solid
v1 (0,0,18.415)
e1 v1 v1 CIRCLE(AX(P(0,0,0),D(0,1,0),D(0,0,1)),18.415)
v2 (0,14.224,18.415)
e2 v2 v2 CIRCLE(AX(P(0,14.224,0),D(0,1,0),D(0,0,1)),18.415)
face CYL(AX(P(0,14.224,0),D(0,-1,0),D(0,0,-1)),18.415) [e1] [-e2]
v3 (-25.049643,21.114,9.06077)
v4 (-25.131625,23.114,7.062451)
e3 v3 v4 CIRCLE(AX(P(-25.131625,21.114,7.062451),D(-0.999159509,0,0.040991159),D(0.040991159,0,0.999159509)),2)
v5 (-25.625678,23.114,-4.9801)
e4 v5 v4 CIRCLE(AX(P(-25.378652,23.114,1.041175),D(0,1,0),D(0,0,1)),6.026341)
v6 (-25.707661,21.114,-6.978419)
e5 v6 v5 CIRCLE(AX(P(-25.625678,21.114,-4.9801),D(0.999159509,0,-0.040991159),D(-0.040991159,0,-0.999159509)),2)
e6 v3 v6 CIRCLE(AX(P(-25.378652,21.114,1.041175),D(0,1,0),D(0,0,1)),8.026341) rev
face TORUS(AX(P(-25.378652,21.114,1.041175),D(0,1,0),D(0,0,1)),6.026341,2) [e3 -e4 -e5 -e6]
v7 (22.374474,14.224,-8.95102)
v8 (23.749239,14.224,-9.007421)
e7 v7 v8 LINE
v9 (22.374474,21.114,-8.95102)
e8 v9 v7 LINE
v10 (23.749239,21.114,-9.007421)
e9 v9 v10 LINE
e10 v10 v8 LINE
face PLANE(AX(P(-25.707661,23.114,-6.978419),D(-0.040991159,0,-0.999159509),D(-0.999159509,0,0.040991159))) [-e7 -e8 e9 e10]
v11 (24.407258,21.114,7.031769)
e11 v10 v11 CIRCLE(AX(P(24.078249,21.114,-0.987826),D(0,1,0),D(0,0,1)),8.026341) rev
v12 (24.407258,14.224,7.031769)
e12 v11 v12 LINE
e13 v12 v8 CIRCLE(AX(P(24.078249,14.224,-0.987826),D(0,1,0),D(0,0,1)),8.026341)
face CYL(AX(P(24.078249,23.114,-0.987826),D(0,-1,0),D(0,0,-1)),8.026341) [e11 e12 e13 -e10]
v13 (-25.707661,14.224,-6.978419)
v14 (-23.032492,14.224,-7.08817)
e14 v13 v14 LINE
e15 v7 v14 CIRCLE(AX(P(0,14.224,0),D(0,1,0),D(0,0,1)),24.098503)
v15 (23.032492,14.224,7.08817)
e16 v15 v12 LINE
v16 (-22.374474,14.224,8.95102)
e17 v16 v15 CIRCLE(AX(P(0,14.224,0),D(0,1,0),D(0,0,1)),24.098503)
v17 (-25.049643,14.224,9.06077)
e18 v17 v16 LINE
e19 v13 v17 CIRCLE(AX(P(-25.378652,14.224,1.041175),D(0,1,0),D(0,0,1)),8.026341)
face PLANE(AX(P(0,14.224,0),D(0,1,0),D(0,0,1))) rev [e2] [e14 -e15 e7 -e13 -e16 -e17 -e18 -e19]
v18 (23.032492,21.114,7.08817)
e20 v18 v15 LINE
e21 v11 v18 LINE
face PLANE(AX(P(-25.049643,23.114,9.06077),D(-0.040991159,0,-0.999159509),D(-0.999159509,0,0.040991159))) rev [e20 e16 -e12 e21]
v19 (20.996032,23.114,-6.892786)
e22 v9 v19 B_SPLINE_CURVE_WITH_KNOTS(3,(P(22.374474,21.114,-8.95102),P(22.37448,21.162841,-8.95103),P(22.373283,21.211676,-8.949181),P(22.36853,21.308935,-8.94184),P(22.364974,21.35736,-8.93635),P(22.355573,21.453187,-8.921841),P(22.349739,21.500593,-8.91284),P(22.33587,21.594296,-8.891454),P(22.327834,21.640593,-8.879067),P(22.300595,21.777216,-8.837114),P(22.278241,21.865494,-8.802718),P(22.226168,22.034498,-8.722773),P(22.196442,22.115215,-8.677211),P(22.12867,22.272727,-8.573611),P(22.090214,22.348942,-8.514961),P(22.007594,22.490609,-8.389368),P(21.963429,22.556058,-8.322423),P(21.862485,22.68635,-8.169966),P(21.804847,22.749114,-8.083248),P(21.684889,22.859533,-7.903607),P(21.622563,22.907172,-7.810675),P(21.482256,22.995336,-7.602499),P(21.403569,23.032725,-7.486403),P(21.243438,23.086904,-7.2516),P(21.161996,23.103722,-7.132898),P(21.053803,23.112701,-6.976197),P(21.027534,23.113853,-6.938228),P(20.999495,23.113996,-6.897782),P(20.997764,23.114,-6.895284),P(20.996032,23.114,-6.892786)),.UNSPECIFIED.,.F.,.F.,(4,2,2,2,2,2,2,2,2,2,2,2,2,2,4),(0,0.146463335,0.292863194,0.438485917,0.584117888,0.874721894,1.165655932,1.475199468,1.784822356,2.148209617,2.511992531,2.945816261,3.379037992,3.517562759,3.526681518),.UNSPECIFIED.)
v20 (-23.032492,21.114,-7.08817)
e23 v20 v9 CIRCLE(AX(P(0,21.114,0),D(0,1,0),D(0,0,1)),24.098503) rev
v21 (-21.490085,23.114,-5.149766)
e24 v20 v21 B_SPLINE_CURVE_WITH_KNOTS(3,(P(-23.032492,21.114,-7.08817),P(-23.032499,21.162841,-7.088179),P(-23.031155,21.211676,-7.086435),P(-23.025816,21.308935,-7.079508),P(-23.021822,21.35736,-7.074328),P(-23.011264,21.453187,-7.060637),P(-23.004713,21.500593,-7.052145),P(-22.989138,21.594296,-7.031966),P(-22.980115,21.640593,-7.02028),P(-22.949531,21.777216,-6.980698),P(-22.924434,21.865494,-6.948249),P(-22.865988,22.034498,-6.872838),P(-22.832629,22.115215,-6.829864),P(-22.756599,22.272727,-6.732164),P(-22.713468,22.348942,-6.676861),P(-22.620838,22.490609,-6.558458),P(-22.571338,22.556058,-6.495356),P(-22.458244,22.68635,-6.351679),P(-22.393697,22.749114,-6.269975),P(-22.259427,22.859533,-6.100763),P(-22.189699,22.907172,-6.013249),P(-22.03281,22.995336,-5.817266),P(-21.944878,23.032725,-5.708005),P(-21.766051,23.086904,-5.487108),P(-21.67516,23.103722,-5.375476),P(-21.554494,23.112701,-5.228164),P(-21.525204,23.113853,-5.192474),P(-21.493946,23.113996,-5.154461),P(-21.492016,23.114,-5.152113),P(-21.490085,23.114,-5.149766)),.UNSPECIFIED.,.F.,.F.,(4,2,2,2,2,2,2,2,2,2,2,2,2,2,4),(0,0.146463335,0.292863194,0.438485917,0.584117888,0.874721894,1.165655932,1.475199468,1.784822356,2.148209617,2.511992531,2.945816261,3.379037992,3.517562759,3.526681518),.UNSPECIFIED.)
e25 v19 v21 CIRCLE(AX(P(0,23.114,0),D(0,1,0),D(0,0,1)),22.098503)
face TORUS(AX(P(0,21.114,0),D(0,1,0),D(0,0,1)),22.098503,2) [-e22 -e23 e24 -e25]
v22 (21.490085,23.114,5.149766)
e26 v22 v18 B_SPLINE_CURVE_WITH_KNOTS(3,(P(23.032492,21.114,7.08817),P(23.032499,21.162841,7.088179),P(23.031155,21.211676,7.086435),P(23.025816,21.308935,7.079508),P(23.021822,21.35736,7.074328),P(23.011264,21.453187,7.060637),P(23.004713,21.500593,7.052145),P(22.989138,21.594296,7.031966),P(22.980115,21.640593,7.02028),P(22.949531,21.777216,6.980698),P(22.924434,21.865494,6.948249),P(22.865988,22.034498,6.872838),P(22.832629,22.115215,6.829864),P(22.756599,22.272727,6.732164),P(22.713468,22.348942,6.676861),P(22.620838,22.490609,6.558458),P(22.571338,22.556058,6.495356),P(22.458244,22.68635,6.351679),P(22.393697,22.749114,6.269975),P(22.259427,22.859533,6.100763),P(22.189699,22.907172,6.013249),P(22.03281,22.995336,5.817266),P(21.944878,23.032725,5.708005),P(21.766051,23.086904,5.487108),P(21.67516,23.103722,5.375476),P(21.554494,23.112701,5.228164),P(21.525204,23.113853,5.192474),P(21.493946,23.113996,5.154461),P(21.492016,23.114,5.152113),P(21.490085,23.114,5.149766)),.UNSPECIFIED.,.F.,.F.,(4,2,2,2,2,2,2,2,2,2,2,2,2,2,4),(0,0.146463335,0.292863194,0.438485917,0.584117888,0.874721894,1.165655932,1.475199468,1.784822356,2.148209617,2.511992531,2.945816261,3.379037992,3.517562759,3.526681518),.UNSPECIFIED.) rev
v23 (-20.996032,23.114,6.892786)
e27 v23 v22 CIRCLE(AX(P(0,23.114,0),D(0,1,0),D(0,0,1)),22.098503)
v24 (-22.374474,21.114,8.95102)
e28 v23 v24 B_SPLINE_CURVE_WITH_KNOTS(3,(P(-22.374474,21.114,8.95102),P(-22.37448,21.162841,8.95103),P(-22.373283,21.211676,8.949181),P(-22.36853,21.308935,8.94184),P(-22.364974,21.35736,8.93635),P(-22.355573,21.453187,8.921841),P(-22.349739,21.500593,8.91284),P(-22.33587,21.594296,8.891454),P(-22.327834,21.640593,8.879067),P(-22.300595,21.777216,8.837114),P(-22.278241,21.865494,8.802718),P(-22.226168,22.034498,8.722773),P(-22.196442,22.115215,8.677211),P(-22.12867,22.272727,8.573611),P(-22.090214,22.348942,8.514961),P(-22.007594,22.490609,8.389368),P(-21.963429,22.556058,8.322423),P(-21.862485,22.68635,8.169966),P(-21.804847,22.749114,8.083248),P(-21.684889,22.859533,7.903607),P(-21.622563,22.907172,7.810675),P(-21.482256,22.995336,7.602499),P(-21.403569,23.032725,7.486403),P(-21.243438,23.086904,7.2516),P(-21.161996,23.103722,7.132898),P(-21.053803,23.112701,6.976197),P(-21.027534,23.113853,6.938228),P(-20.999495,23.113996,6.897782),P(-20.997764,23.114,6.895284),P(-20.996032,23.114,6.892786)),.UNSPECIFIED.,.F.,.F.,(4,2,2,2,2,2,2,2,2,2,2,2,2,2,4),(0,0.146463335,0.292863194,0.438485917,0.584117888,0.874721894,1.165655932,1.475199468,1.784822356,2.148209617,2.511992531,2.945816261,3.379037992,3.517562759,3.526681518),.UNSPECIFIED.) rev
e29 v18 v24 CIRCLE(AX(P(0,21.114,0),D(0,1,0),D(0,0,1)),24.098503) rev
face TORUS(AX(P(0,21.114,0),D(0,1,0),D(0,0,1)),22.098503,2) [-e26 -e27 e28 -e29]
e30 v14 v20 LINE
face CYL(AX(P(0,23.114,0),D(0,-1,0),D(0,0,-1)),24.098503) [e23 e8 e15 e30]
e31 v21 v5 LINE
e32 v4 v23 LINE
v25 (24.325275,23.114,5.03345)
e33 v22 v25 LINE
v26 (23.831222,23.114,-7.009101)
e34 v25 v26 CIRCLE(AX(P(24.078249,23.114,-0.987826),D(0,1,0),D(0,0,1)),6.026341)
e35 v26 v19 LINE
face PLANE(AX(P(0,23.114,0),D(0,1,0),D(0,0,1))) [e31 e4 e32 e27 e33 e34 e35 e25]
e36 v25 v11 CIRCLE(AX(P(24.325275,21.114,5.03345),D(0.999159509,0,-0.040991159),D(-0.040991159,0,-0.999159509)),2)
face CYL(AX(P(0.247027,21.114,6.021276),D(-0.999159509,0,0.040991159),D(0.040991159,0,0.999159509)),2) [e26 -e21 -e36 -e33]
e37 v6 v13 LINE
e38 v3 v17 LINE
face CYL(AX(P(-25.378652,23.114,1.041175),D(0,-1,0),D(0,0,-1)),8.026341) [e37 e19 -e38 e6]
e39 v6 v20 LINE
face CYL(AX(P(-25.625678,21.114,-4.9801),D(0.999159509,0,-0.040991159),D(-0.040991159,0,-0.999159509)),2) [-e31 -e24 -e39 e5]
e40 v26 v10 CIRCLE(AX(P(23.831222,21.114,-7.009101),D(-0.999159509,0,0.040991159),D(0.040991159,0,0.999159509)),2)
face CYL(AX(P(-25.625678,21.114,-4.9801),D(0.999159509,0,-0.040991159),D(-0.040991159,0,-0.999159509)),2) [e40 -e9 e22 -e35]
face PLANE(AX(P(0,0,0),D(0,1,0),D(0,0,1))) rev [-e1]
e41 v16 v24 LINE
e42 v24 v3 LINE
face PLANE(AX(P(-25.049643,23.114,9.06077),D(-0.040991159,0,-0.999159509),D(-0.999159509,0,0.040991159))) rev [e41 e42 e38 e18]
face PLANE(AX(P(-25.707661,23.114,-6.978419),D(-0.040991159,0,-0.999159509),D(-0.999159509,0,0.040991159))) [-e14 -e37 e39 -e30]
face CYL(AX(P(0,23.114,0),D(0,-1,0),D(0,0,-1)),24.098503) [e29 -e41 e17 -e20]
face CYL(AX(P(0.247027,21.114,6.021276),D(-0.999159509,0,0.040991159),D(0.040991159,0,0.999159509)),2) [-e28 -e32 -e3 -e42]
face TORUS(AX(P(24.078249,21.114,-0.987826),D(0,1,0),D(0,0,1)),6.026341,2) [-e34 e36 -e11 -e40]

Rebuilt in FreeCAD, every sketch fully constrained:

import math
import FreeCAD as App
import Part
import Sketcher
from FreeCAD import Vector
Q = App.Units.Quantity


def edges_at(feature, points):
    """Names of the edges that pass closest to the given points."""
    edges = feature.Shape.Edges
    near = lambda p: min(range(len(edges)), key=lambda i: edges[i].distToShape(Part.Vertex(*p))[0])
    return sorted({f"Edge{near(p) + 1}" for p in points})

doc = App.newDocument("Part")
body = doc.addObject("PartDesign::Body", "Body")

# Sketch on XZ plane
sketch1 = doc.addObject("Sketcher::SketchObject", "Sketch")
body.addObject(sketch1)
sketch1.AttachmentSupport = (doc.XZ_Plane, [""])
sketch1.MapMode = "FlatFace"
sketch1.addGeometry(Part.Circle(Vector(0, 0, 0), Vector(0, 0, 1), 18.415), False)
sketch1.addConstraint([
    Sketcher.Constraint("Coincident", 0, 3, -1, 1),
    Sketcher.Constraint("Diameter", 0, Q("1.45 in")),
])
pad1 = doc.addObject("PartDesign::Pad", "Pad")
body.addObject(pad1)
pad1.Profile = sketch1
pad1.Length = Q("0.56 in")
pad1.Reversed = True

# Sketch on XZ plane
sketch2 = doc.addObject("Sketcher::SketchObject", "Sketch001")
body.addObject(sketch2)
sketch2.AttachmentSupport = (doc.XZ_Plane, [""])
sketch2.MapMode = "FlatFace"
sketch2.AttachmentOffset = App.Placement(Vector(0, 0, -0.56 * 25.4), App.Rotation())
sketch2.addGeometry([
    Part.ArcOfCircle(Part.Circle(Vector(24.078249, -0.987826, 0), Vector(0, 0, 1), 8.026341), math.radians(-92.349279), math.radians(87.650721)),  # 0
    Part.LineSegment(Vector(23.749239, -9.007421, 0), Vector(22.374474, -8.95102, 0)),  # 1
    Part.ArcOfCircle(Part.Circle(Vector(0, 0, 0), Vector(0, 0, 1), 24.098503), math.radians(-162.894432), math.radians(-21.804125)),  # 2
    Part.LineSegment(Vector(-23.032492, -7.08817, 0), Vector(-25.707661, -6.978419, 0)),  # 3
    Part.ArcOfCircle(Part.Circle(Vector(-25.378652, 1.041175, 0), Vector(0, 0, 1), 8.026341), math.radians(87.650721), math.radians(267.650721)),  # 4
    Part.LineSegment(Vector(-25.049643, 9.06077, 0), Vector(-22.374474, 8.95102, 0)),  # 5
    Part.ArcOfCircle(Part.Circle(Vector(0, 0, 0), Vector(0, 0, 1), 24.098503), math.radians(17.105568), math.radians(158.195875)),  # 6
    Part.LineSegment(Vector(23.032492, 7.08817, 0), Vector(24.407258, 7.031769, 0)),  # 7
], False)
sketch2.addConstraint([
    Sketcher.Constraint("Tangent", 0, 1, 1, 1),
    Sketcher.Constraint("Coincident", 1, 2, 2, 2),
    Sketcher.Constraint("Coincident", 2, 1, 3, 1),
    Sketcher.Constraint("Tangent", 3, 2, 4, 2),
    Sketcher.Constraint("Tangent", 4, 1, 5, 1),
    Sketcher.Constraint("Coincident", 5, 2, 6, 2),
    Sketcher.Constraint("Coincident", 6, 1, 7, 1),
    Sketcher.Constraint("Tangent", 7, 2, 0, 2),
    Sketcher.Constraint("Coincident", 2, 3, -1, 1),
    Sketcher.Constraint("Coincident", 6, 3, -1, 1),
    Sketcher.Constraint("Equal", 0, 4),
    Sketcher.Constraint("Equal", 2, 6),
    Sketcher.Constraint("Parallel", 1, 3),
    Sketcher.Constraint("Parallel", 3, 5),
    Sketcher.Constraint("Parallel", 5, 7),
    Sketcher.Constraint("Equal", 3, 5),
    Sketcher.Constraint("Equal", 1, 7),
    Sketcher.Constraint("Radius", 0, 8.026341),
    Sketcher.Constraint("Radius", 2, 24.098503),
    Sketcher.Constraint("DistanceX", 4, 3, 0, 3, 49.4569),
    Sketcher.Constraint("DistanceY", 0, 3, 4, 3, 2.029001),
    Sketcher.Constraint("DistanceY", 0, 1, 1, 2, 0.056401),
])
pad2 = doc.addObject("PartDesign::Pad", "Pad001")
body.addObject(pad2)
pad2.Profile = sketch2
pad2.Length = Q("0.35 in")
pad2.Reversed = True
doc.recompute()

fillet = doc.addObject("PartDesign::Fillet", "Fillet")
body.addObject(fillet)
fillet.Base = (pad2, edges_at(pad2, [
    (-24.37, 23.114, -7.033),
    (23.062, 23.114, -8.979),
    (-0.988, 23.114, -24.078),
    (-33.398, 23.114, 1.37),
    (-23.712, 23.114, 9.006),
    (0.988, 23.114, 24.078),
    (23.72, 23.114, 7.06),
    (32.098, 23.114, -1.317),
]))
fillet.Radius = 2

doc.recompute()
